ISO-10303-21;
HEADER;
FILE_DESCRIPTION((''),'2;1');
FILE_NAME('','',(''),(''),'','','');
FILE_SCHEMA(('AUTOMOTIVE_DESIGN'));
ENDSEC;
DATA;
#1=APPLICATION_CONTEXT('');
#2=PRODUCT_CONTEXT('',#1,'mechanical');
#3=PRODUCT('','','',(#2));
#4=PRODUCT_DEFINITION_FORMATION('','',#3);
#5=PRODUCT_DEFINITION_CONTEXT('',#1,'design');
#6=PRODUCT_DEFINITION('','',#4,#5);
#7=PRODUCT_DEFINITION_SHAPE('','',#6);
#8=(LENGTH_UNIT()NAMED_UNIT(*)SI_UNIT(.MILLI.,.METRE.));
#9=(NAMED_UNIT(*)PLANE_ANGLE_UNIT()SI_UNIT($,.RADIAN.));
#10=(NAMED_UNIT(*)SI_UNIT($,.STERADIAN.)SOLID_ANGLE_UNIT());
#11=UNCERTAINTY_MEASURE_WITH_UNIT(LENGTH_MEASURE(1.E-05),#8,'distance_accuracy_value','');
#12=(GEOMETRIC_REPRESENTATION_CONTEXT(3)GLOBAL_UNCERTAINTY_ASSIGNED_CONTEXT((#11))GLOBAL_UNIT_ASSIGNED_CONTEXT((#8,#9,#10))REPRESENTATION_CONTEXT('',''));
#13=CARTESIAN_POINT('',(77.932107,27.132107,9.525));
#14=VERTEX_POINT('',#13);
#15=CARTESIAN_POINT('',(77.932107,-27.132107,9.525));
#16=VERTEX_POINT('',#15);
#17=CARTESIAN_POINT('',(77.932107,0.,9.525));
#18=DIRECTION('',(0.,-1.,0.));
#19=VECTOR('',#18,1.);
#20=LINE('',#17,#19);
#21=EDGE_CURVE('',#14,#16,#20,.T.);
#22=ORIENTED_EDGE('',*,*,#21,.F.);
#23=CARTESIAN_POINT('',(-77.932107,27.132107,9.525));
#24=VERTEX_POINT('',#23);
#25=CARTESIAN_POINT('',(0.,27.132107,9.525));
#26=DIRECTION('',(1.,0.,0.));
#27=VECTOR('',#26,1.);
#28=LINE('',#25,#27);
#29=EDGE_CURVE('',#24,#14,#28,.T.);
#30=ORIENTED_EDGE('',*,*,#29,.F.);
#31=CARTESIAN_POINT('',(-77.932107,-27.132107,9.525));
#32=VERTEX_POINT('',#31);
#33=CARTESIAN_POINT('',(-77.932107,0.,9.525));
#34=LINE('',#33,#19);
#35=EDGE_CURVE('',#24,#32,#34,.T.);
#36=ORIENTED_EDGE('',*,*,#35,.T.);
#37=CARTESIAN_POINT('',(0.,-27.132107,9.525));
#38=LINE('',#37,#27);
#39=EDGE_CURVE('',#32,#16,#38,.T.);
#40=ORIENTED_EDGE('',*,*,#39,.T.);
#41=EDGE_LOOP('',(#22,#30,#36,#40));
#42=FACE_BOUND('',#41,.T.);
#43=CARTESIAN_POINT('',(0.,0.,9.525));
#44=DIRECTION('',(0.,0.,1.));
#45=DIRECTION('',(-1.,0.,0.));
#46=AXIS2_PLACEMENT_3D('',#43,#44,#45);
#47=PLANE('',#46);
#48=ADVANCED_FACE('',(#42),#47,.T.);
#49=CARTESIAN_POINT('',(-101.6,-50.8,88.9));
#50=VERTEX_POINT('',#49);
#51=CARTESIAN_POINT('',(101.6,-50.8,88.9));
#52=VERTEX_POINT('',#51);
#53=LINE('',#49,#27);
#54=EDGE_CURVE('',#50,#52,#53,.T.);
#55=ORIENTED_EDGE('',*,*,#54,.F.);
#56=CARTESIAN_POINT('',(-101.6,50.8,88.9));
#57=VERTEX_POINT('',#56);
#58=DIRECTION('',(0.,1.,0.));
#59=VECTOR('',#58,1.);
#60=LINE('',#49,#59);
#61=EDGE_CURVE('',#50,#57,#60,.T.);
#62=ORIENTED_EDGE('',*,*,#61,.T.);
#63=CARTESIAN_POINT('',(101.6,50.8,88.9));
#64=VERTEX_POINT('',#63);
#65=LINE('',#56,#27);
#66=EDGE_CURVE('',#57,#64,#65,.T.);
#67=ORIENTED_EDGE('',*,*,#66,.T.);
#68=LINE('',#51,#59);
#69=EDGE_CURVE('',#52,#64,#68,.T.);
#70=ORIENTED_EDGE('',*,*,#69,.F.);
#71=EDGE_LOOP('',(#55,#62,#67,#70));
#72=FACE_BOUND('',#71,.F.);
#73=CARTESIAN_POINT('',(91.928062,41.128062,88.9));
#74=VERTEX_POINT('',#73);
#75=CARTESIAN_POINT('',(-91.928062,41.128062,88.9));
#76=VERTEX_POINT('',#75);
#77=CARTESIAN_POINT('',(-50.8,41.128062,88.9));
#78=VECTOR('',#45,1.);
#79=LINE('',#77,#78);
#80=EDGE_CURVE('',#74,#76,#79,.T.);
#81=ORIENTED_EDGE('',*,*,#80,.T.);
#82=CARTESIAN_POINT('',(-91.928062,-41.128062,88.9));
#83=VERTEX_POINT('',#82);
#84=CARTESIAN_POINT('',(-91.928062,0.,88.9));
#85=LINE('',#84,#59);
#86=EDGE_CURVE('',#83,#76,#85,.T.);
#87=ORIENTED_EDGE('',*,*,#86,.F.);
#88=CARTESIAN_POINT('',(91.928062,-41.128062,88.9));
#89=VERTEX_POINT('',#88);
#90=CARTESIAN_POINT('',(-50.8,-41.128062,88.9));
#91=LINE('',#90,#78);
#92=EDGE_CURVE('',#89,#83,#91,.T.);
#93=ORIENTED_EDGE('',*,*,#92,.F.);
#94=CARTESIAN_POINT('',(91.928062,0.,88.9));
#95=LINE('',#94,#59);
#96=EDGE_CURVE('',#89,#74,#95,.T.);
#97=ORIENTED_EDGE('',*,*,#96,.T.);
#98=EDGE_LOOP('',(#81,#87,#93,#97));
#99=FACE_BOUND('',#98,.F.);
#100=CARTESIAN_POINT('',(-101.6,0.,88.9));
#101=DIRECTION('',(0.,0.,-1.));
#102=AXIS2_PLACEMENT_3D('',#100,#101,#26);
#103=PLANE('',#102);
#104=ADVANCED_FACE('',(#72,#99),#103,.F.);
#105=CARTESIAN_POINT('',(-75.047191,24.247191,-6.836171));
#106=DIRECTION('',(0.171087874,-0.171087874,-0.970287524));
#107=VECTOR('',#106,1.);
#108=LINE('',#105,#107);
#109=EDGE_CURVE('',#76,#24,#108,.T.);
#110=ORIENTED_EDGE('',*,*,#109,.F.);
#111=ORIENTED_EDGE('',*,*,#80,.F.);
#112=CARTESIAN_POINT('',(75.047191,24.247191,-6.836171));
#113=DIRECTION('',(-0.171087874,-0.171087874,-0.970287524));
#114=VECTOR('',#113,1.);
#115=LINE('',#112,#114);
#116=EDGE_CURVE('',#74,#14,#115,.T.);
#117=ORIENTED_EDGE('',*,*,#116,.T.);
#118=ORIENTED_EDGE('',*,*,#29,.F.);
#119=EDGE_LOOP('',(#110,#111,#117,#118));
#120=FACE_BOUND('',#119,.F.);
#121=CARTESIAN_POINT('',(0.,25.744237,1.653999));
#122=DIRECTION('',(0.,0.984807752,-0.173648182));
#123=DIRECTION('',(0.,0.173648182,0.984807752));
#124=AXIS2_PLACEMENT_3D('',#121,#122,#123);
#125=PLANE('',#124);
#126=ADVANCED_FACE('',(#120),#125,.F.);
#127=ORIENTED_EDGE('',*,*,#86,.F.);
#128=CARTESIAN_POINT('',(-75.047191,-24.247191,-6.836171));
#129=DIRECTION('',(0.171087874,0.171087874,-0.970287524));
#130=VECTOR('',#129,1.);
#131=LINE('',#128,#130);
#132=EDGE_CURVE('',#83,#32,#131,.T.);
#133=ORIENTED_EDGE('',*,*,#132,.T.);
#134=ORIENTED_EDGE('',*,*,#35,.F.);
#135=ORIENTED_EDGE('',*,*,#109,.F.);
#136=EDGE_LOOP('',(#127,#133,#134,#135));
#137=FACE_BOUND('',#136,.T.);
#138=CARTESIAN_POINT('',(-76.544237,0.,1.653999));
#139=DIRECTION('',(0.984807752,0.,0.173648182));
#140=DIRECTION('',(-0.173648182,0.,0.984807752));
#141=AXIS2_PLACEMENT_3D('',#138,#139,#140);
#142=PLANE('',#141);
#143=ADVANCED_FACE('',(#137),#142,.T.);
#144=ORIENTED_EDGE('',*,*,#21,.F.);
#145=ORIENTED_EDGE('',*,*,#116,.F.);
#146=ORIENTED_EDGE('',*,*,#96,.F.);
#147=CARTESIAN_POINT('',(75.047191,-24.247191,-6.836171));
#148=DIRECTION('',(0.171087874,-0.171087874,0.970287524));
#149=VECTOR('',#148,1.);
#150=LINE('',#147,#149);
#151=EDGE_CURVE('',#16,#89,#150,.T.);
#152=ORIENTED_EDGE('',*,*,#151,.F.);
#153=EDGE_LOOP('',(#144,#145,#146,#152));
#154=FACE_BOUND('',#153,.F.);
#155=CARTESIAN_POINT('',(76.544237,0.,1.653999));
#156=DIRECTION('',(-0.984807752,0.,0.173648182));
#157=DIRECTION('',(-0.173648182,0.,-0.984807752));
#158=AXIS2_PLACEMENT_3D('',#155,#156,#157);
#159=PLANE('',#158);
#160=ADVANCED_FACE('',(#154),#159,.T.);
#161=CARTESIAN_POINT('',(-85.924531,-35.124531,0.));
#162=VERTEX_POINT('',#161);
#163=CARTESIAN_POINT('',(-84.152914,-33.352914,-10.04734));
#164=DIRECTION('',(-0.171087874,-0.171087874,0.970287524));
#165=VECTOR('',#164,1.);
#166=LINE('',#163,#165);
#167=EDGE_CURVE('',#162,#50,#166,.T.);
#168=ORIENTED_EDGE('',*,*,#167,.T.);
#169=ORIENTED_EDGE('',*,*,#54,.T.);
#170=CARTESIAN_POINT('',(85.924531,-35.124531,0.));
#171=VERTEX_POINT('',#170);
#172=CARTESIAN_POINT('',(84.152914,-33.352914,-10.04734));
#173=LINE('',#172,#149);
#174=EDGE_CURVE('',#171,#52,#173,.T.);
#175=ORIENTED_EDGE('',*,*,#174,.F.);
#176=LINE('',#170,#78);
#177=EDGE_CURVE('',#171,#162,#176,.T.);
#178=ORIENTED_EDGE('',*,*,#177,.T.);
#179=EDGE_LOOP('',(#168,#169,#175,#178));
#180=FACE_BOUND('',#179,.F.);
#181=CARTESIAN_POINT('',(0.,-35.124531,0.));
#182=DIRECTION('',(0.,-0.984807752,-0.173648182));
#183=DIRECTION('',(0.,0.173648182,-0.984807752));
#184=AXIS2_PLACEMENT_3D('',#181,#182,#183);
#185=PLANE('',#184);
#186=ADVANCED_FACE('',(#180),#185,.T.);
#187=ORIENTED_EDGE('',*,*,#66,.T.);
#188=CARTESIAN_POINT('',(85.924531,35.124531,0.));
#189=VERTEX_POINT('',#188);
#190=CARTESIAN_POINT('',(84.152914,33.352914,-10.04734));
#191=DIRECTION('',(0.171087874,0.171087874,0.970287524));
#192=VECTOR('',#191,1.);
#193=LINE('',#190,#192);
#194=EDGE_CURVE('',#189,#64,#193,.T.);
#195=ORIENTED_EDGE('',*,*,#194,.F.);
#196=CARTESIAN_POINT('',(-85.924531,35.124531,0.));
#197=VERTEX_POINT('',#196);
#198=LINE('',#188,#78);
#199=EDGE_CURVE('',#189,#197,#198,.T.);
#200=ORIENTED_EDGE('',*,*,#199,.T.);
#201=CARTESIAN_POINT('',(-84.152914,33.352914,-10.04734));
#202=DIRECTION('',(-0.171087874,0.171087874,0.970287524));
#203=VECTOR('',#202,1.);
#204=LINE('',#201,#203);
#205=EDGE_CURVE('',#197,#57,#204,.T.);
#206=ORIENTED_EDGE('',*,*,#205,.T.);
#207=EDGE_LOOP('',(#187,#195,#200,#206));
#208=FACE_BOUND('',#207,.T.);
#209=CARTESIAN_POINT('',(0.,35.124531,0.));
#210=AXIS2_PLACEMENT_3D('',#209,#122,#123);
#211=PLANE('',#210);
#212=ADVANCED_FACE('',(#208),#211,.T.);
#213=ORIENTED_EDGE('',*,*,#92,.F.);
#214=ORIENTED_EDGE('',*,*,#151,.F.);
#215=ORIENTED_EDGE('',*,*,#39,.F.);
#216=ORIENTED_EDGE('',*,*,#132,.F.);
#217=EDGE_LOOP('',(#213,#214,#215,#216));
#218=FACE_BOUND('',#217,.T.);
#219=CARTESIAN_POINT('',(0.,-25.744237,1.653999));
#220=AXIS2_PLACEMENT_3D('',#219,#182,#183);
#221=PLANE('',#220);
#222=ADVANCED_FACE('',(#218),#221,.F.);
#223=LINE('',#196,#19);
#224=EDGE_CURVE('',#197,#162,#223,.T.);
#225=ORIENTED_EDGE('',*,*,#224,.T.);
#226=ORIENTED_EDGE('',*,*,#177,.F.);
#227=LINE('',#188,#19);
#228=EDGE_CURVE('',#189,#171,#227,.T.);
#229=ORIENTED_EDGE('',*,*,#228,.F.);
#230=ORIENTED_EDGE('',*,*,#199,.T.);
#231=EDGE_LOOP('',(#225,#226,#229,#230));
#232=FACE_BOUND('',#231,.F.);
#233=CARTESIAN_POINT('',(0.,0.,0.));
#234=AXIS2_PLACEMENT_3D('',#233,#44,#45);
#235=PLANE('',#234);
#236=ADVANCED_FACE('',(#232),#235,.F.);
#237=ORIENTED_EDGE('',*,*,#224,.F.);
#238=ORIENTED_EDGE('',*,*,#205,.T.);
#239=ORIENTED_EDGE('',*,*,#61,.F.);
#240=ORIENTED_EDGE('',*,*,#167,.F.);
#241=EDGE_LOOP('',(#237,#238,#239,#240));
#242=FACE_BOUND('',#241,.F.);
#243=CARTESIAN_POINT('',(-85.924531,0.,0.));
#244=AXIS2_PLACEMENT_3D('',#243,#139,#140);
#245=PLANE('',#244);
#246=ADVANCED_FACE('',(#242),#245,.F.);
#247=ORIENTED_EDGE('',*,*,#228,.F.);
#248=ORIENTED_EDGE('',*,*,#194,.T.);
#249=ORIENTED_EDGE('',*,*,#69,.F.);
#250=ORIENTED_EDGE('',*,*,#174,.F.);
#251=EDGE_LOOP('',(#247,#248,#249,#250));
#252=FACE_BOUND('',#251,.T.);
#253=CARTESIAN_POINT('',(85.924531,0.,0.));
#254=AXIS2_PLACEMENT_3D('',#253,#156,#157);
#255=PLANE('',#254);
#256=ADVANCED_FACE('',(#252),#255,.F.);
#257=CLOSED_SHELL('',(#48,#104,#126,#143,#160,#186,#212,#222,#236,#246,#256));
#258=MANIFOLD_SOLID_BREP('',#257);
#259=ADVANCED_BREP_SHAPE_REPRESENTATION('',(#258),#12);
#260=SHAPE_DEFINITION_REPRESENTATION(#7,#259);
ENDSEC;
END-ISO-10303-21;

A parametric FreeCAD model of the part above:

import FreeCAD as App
import Part
import Sketcher
Q = App.Units.Quantity


def faces_at(feature, points):
    """Names of the faces that lie closest to the given points."""
    faces = feature.Shape.Faces
    near = lambda p: min(range(len(faces)), key=lambda i: faces[i].distToShape(Part.Vertex(*p))[0])
    return sorted({f"Face{near(p) + 1}" for p in points})

doc = App.newDocument("Part")
body = doc.addObject("PartDesign::Body", "Body")

# Sketch on XZ plane
sketch1 = body.newObject("Sketcher::SketchObject", "Sketch")
sketch1.AttachmentSupport = (doc.getObject("XZ_Plane"), [""])
sketch1.MapMode = "FlatFace"
sketch1.addGeometry(Part.LineSegment(App.Vector(0, 89, 0), App.Vector(0, 0, 0)), False)
sketch1.addGeometry(Part.LineSegment(App.Vector(0, 0, 0), App.Vector(86, 0, 0)), False)
sketch1.addGeometry(Part.LineSegment(App.Vector(86, 0, 0), App.Vector(102, 89, 0)), False)
sketch1.addGeometry(Part.LineSegment(App.Vector(102, 89, 0), App.Vector(0, 89, 0)), False)
sketch1.addConstraint(Sketcher.Constraint("Coincident", 0, 2, 1, 1))
sketch1.addConstraint(Sketcher.Constraint("Coincident", 1, 2, 2, 1))
sketch1.addConstraint(Sketcher.Constraint("Coincident", 2, 2, 3, 1))
sketch1.addConstraint(Sketcher.Constraint("Coincident", 3, 2, 0, 1))
sketch1.addConstraint(Sketcher.Constraint("Vertical", 0))
sketch1.addConstraint(Sketcher.Constraint("Horizontal", 1))
sketch1.addConstraint(Sketcher.Constraint("Horizontal", 3))
sketch1.addConstraint(Sketcher.Constraint("Coincident", 0, 2, -1, 1))
sketch1.addConstraint(Sketcher.Constraint("DistanceX", 3, 2, 3, 1, Q("4 in")))
sketch1.addConstraint(Sketcher.Constraint("DistanceY", 0, 2, 0, 1, Q("3.5 in")))
sketch1.addConstraint(Sketcher.Constraint("Angle", 2, Q("80 deg")))
pad1 = body.newObject("PartDesign::Pad", "Pad")
pad1.Profile = sketch1
pad1.Length = Q("2 in")

# Sketch on YZ plane
sketch2 = body.newObject("Sketcher::SketchObject", "Sketch001")
sketch2.AttachmentSupport = (doc.getObject("YZ_Plane"), [""])
sketch2.MapMode = "FlatFace"
sketch2.addGeometry(Part.LineSegment(App.Vector(-35, 0, 0), App.Vector(-51, 89, 0)), False)
sketch2.addGeometry(Part.LineSegment(App.Vector(-51, 89, 0), App.Vector(-51, 0, 0)), False)
sketch2.addGeometry(Part.LineSegment(App.Vector(-51, 0, 0), App.Vector(-35, 0, 0)), False)
sketch2.addConstraint(Sketcher.Constraint("Coincident", 0, 2, 1, 1))
sketch2.addConstraint(Sketcher.Constraint("Coincident", 1, 2, 2, 1))
sketch2.addConstraint(Sketcher.Constraint("Coincident", 2, 2, 0, 1))
sketch2.addConstraint(Sketcher.Constraint("Vertical", 1))
sketch2.addConstraint(Sketcher.Constraint("Horizontal", 2))
sketch2.addConstraint(Sketcher.Constraint("PointOnObject", 1, 2, -1))
sketch2.addConstraint(Sketcher.Constraint("DistanceY", 1, 2, 1, 1, Q("3.5 in")))
sketch2.addConstraint(Sketcher.Constraint("DistanceX", 0, 2, -1, 1, Q("2 in")))
sketch2.addConstraint(Sketcher.Constraint("Angle", 0, Q("100 deg")))
pocket1 = body.newObject("PartDesign::Pocket", "Pocket")
pocket1.Profile = sketch2
pocket1.Type = "ThroughAll"
pocket1.Reversed = True
body2 = doc.addObject("PartDesign::Body", "Body001")
doc.recompute()

body2.BaseFeature = body
doc.recompute()

mirroring = doc.addObject("Part::Mirroring", "Mirroring")
mirroring.Source = body
mirroring.Base = App.Vector(0, 0, 0)
mirroring.Normal = App.Vector(0, -1, 0)
body3 = doc.addObject("PartDesign::Body", "Body002")
body3.BaseFeature = mirroring
boolean = body2.newObject("PartDesign::Boolean", "Boolean")
boolean.Type = "Fuse"
boolean.addObjects([body3])
doc.recompute()
body4 = doc.addObject("PartDesign::Body", "Body003")
doc.recompute()

body4.BaseFeature = body2
doc.recompute()

mirroring2 = doc.addObject("Part::Mirroring", "Mirroring001")
mirroring2.Source = body2
mirroring2.Base = App.Vector(0, 0, 0)
mirroring2.Normal = App.Vector(1, 0, 0)
body5 = doc.addObject("PartDesign::Body", "Body004")
body5.BaseFeature = mirroring2
boolean2 = body4.newObject("PartDesign::Boolean", "Boolean001")
boolean2.Type = "Fuse"
boolean2.addObjects([body5])
doc.recompute()

thickness = body4.newObject("PartDesign::Thickness", "Thickness")
thickness.Base = (boolean2, faces_at(boolean2, [(0, 0, 88.9)]))
thickness.Value = Q("0.375 in")
thickness.Reversed = True
thickness.Join = "Arc"
mirroring.Visibility = False
mirroring2.Visibility = False

doc.recompute()
